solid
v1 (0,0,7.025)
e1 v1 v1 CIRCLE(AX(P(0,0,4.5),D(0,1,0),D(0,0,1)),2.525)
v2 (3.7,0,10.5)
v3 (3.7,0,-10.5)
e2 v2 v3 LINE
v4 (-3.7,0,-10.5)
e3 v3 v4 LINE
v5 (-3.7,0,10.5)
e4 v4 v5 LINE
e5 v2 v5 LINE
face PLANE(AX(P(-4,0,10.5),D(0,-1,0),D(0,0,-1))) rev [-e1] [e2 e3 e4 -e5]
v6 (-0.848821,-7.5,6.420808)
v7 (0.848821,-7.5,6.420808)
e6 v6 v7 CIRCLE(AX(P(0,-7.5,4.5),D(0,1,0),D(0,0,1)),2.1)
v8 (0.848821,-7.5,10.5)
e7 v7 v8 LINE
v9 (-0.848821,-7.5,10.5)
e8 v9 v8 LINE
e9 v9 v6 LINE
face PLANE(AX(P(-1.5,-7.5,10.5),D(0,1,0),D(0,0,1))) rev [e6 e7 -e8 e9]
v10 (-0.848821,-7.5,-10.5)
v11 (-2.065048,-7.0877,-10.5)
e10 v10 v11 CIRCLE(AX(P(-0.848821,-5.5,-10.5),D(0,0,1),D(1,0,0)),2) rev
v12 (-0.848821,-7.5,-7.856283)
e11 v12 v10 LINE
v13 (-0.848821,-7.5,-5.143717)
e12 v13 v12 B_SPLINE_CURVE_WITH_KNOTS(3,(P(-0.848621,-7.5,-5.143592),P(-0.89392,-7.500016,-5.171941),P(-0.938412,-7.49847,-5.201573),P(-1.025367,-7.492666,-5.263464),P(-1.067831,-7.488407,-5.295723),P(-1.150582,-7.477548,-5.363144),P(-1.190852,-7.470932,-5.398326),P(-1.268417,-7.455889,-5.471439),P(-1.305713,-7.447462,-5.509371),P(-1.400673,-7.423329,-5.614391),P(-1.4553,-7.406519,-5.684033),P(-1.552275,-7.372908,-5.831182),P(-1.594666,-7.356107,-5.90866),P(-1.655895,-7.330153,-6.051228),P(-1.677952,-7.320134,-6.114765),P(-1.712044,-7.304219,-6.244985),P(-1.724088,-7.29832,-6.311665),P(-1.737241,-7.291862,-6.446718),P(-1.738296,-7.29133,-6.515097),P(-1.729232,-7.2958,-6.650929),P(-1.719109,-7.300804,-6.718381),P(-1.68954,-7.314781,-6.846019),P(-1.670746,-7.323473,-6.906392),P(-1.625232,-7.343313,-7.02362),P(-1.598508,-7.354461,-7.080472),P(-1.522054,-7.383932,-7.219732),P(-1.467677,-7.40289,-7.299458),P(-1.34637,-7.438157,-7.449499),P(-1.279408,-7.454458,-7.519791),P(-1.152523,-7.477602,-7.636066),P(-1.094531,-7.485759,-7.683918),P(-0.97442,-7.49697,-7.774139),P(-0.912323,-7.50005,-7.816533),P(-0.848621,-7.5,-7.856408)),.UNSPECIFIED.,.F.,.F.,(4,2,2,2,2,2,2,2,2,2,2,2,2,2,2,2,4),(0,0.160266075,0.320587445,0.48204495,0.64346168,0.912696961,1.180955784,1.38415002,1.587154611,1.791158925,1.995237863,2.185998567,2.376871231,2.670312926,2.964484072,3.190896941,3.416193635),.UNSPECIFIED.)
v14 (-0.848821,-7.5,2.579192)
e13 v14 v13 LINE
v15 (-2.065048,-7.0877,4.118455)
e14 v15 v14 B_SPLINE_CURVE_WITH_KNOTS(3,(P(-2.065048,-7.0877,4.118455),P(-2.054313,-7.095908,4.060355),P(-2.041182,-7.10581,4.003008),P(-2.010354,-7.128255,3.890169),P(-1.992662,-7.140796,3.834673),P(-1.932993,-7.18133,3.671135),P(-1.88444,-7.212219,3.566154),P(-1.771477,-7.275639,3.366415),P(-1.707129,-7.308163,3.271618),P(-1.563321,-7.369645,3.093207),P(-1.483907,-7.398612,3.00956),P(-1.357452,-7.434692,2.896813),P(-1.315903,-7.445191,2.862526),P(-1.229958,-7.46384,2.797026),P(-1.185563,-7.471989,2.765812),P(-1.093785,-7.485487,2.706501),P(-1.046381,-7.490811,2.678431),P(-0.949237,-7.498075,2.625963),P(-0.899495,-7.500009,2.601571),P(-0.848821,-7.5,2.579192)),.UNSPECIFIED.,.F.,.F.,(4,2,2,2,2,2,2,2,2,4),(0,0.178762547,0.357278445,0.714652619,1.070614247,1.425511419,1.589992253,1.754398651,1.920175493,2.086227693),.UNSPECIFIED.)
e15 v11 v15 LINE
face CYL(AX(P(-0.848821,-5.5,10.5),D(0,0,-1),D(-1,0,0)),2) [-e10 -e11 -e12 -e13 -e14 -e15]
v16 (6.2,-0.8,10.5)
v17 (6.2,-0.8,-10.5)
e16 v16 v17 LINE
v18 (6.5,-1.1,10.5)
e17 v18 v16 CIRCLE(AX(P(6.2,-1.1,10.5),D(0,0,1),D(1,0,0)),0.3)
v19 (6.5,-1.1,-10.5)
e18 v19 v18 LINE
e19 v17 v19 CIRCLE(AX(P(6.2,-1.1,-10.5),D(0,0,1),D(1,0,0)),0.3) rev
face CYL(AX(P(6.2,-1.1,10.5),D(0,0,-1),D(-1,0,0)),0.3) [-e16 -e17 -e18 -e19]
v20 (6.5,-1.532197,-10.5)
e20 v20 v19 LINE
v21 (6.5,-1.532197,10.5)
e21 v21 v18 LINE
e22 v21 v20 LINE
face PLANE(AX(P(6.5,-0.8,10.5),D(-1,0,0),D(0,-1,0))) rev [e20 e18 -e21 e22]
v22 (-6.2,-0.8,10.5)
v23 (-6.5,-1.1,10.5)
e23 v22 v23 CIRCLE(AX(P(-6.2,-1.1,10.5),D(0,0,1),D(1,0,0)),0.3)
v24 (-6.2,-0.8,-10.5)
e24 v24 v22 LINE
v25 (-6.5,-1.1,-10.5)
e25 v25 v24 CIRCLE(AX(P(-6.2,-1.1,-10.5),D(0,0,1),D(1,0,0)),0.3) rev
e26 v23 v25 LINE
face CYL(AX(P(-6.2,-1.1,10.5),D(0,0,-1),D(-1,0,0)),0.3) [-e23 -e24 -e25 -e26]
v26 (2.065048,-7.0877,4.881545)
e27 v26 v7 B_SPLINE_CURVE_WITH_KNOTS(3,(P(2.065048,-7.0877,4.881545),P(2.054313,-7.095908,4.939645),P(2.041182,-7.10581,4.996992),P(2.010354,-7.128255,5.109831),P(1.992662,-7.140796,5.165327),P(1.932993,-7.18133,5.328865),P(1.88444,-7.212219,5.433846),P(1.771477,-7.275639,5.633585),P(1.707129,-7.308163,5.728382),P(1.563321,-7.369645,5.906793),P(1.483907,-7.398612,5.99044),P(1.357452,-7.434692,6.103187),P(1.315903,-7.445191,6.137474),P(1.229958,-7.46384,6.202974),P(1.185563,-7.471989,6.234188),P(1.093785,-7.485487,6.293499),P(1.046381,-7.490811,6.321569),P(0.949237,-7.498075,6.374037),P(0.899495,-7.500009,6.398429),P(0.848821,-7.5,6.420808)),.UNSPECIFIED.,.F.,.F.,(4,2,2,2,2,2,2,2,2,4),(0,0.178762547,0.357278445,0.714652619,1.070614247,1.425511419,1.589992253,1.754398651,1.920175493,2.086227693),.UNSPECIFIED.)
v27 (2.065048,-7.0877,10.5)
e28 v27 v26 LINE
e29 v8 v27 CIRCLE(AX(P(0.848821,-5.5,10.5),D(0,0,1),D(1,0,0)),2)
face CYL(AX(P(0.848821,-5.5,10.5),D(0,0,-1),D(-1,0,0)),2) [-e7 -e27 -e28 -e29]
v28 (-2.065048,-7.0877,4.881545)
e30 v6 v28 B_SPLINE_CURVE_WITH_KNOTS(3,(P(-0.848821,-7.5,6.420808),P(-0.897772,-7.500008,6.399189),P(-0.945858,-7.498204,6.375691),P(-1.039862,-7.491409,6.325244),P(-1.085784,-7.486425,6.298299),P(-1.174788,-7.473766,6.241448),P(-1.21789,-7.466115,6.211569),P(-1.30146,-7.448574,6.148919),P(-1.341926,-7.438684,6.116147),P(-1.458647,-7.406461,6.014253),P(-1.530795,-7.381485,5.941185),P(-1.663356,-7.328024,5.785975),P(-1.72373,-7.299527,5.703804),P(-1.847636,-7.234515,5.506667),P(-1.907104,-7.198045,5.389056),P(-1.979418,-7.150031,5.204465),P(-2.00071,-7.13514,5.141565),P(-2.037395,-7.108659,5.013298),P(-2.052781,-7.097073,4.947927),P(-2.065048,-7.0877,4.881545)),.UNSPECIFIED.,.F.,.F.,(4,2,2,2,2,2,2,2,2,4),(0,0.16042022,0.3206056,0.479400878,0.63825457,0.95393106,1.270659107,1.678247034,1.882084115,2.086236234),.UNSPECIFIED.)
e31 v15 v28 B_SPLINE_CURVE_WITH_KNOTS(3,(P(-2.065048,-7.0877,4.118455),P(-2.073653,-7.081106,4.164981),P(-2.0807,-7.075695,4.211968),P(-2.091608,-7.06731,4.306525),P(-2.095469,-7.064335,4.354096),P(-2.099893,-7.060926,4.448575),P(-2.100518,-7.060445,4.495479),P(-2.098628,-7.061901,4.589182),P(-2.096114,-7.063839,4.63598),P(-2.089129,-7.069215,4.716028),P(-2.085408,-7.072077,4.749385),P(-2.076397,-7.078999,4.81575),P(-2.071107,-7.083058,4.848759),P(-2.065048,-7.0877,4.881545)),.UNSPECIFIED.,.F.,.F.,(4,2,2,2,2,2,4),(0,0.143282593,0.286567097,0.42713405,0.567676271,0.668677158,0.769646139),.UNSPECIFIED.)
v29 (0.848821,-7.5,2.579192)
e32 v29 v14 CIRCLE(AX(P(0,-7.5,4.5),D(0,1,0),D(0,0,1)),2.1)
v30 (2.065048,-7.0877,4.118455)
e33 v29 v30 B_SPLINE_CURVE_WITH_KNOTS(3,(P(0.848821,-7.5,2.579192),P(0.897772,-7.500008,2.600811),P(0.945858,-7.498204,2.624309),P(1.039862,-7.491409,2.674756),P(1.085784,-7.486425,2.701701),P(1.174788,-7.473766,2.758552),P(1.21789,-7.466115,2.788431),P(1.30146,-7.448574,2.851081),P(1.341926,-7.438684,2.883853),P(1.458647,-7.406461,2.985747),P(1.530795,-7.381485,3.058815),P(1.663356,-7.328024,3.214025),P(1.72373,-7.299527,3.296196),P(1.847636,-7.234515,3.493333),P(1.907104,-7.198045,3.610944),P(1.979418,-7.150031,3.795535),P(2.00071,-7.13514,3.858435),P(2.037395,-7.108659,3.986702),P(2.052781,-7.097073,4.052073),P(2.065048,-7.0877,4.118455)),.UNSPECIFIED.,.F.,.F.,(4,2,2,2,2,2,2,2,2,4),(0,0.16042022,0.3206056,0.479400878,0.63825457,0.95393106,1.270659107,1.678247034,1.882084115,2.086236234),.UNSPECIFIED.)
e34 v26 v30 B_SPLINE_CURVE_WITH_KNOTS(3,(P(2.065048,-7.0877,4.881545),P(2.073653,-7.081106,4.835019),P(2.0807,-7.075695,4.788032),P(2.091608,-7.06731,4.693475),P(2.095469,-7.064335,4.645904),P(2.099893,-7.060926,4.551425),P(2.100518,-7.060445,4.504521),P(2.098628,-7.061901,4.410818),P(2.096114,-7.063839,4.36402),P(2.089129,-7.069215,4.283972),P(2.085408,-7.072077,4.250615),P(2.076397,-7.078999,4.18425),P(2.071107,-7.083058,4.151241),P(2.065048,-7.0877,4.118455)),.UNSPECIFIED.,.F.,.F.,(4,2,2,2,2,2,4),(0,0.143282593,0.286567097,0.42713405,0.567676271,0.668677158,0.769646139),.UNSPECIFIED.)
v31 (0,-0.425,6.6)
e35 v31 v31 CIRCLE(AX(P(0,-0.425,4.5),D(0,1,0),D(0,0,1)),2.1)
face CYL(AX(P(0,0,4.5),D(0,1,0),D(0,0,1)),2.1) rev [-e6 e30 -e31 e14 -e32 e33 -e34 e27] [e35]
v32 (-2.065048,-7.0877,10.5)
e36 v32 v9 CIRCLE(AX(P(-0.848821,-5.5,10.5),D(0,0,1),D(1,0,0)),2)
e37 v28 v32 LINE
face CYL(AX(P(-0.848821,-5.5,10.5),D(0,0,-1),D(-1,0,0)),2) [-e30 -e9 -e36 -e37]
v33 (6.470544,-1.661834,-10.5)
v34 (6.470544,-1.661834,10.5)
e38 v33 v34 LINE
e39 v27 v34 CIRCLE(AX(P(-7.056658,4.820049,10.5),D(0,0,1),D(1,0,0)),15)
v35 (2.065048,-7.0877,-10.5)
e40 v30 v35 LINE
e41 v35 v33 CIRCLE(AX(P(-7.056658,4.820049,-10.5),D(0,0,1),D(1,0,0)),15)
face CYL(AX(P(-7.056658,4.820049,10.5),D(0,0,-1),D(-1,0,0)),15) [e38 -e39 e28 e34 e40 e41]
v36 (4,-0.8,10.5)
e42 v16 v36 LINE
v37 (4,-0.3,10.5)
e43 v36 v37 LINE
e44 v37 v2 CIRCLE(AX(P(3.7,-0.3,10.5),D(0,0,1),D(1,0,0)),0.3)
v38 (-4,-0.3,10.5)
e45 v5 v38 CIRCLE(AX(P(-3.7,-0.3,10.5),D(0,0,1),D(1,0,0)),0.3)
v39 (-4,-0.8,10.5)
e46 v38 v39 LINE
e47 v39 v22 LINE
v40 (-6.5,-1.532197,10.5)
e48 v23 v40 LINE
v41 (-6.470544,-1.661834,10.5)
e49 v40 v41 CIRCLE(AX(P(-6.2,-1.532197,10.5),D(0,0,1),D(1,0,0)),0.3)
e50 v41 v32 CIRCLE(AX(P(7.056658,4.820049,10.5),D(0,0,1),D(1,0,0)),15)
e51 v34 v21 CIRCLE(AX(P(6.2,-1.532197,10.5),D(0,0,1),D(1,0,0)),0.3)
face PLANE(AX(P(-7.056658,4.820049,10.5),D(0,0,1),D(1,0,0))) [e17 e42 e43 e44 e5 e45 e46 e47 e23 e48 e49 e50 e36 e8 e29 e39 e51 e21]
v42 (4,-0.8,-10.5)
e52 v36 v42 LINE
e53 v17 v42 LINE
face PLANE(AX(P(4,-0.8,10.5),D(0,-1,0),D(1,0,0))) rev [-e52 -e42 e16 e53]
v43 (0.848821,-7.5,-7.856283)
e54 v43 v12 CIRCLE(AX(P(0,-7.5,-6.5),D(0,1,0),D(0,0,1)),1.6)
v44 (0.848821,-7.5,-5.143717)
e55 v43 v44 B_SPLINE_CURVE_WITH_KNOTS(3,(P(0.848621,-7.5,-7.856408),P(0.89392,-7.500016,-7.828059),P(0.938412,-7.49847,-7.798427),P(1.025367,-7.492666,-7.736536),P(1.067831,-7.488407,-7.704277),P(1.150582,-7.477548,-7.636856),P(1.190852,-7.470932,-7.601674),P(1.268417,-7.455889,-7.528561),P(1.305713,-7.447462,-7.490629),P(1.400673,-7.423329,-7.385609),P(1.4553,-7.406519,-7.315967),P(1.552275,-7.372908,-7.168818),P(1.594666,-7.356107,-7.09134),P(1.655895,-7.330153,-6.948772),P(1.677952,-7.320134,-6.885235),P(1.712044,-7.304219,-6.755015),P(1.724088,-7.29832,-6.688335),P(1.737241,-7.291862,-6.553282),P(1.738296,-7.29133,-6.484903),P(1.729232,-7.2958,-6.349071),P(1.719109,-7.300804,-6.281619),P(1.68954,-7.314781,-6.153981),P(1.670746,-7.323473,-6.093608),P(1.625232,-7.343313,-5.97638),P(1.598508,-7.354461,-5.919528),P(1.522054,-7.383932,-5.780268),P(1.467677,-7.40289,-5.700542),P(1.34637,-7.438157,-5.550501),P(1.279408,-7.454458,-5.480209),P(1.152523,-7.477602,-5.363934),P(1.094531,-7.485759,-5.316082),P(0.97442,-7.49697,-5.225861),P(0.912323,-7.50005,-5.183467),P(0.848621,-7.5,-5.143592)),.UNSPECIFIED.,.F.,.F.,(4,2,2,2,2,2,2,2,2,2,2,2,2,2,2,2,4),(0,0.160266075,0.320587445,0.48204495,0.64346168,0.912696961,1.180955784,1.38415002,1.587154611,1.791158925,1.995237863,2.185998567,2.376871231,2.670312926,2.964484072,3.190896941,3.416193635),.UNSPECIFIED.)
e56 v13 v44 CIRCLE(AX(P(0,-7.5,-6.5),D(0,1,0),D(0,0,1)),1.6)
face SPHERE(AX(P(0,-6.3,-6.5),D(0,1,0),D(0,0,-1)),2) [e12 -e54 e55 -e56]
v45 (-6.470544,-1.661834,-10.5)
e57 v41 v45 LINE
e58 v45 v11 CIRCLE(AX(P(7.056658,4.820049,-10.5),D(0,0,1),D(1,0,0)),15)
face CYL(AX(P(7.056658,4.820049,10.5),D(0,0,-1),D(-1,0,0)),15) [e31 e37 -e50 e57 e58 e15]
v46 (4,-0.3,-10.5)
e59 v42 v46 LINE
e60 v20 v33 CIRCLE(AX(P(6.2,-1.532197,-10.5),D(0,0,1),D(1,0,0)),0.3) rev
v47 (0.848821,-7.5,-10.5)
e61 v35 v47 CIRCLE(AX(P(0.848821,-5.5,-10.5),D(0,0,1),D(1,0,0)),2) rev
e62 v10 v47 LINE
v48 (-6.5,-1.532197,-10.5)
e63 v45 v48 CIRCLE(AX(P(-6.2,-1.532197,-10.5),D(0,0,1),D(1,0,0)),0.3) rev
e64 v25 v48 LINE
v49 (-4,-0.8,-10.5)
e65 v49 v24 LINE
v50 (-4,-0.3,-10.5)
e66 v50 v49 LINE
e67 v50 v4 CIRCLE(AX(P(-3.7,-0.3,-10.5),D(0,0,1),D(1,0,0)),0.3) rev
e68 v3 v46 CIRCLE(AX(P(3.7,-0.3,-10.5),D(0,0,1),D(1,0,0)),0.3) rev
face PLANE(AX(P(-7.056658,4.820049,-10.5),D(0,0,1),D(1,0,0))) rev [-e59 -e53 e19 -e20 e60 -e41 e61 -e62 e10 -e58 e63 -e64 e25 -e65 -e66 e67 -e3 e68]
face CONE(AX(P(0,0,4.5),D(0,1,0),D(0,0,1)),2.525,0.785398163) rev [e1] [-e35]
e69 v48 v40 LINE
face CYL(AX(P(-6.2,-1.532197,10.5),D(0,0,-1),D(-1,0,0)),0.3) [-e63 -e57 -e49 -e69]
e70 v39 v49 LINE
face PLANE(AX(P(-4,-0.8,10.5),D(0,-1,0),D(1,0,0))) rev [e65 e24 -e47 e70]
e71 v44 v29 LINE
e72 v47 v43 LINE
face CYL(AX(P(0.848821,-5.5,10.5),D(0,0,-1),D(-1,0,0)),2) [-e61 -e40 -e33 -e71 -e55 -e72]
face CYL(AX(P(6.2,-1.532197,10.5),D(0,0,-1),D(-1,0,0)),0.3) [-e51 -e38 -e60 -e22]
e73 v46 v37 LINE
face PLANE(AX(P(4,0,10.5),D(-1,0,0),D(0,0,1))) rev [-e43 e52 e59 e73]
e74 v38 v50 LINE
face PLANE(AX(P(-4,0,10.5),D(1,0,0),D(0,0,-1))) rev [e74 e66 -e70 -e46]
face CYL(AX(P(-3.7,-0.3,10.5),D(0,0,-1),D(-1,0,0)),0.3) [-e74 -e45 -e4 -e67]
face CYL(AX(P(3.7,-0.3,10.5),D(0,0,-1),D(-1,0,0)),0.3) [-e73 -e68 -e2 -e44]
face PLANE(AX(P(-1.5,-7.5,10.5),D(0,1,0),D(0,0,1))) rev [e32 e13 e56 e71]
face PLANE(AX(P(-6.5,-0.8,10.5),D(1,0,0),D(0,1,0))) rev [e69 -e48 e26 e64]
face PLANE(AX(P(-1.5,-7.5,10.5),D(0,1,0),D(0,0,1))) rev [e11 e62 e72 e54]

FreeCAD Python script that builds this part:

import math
import FreeCAD as App
import Part
import Sketcher

V = App.Vector
Q = App.Units.Quantity


def edges_at(feature, points):
    """Names of the edges that pass closest to the given points."""
    edges = feature.Shape.Edges
    near = lambda p: min(range(len(edges)), key=lambda i: edges[i].distToShape(Part.Vertex(*p))[0])
    return sorted({f"Edge{near(p) + 1}" for p in points})

doc = App.newDocument("Part")
params = doc.addObject("Spreadsheet::Sheet", "Params")
for row, (alias, value) in enumerate([
    ("sketch1_radius", "15 mm"),
    ("sketch1_width", "8 mm"),
    ("sketch1_width2", "3 mm"),
    ("sketch1_width3", "2.5 mm"),
    ("sketch1_height", "0.8 mm"),
    ("pad1_length", "21 mm"),
    ("fillet_radius", "0.3 mm"),
    ("fillet2_radius", "2 mm"),
    ("sketch2_diameter", "4.2 mm"),
    ("hole_diameter", "4.2 mm"),
    ("hole_csink_diameter", "5.05 mm"),
    ("sketch3_radius", "2 mm"),
    ("revolution_angle", "360 deg"),
], start=1):
    params.set(f"A{row}", alias)
    params.set(f"B{row}", "=" + value)
    params.setAlias(f"B{row}", alias)

body = doc.addObject("PartDesign::Body", "Body")

# Sketch on XY plane
sketch1 = body.newObject("Sketcher::SketchObject", "Sketch")
sketch1.AttachmentSupport = (doc.getObject("XY_Plane"), [""])
sketch1.MapMode = "FlatFace"
sketch1.addGeometry(Part.LineSegment(V(4, 0, 0), V(-4, 0, 0)), False)
sketch1.addGeometry(Part.LineSegment(V(-4, 0, 0), V(-4, -0.8, 0)), False)
sketch1.addGeometry(Part.LineSegment(V(-4, -0.8, 0), V(-6.5, -0.8, 0)), False)
sketch1.addGeometry(Part.LineSegment(V(-6.5, -0.8, 0), V(-6.5, -1.6, 0)), False)
sketch1.addGeometry(Part.ArcOfCircle(Part.Circle(V(7.056658, 4.820049, 0), V(0, 0, 1), 15), math.radians(-154.659091), math.radians(-124.781183)), False)
sketch1.addGeometry(Part.LineSegment(V(-1.5, -7.5, 0), V(1.5, -7.5, 0)), False)
sketch1.addGeometry(Part.ArcOfCircle(Part.Circle(V(-7.056658, 4.820049, 0), V(0, 0, 1), 15), math.radians(-55.218817), math.radians(-25.340909)), False)
sketch1.addGeometry(Part.LineSegment(V(6.5, -1.6, 0), V(6.5, -0.8, 0)), False)
sketch1.addGeometry(Part.LineSegment(V(6.5, -0.8, 0), V(4, -0.8, 0)), False)
sketch1.addGeometry(Part.LineSegment(V(4, -0.8, 0), V(4, 0, 0)), False)
sketch1.addConstraint(Sketcher.Constraint("Coincident", 0, 2, 1, 1))
sketch1.addConstraint(Sketcher.Constraint("Coincident", 1, 2, 2, 1))
sketch1.addConstraint(Sketcher.Constraint("Coincident", 2, 2, 3, 1))
sketch1.addConstraint(Sketcher.Constraint("Coincident", 3, 2, 4, 1))
sketch1.addConstraint(Sketcher.Constraint("Coincident", 4, 2, 5, 1))
sketch1.addConstraint(Sketcher.Constraint("Coincident", 5, 2, 6, 1))
sketch1.addConstraint(Sketcher.Constraint("Coincident", 6, 2, 7, 1))
sketch1.addConstraint(Sketcher.Constraint("Coincident", 7, 2, 8, 1))
sketch1.addConstraint(Sketcher.Constraint("Coincident", 8, 2, 9, 1))
sketch1.addConstraint(Sketcher.Constraint("Coincident", 9, 2, 0, 1))
sketch1.addConstraint(Sketcher.Constraint("Horizontal", 0))
sketch1.addConstraint(Sketcher.Constraint("Vertical", 1))
sketch1.addConstraint(Sketcher.Constraint("Horizontal", 2))
sketch1.addConstraint(Sketcher.Constraint("Vertical", 3))
sketch1.addConstraint(Sketcher.Constraint("Horizontal", 5))
sketch1.addConstraint(Sketcher.Constraint("Vertical", 7))
sketch1.addConstraint(Sketcher.Constraint("Horizontal", 8))
sketch1.addConstraint(Sketcher.Constraint("Vertical", 9))
sketch1.addConstraint(Sketcher.Constraint("Equal", 4, 6))
sketch1.addConstraint(Sketcher.Constraint("Symmetric", 0, 2, 9, 2, -1, 1))
sketch1.addConstraint(Sketcher.Constraint("Symmetric", 4, 3, 6, 3, -2))
sketch1.addConstraint(Sketcher.Constraint("Symmetric", 2, 2, 7, 2, -2))
sketch1.addConstraint(Sketcher.Constraint("Equal", 1, 3))
sketch1.addConstraint(Sketcher.Constraint("Radius", 4, Q("15 mm")))
sketch1.addConstraint(Sketcher.Constraint("DistanceX", 0, 2, 0, 1, Q("8 mm")))
sketch1.addConstraint(Sketcher.Constraint("DistanceX", 5, 1, 5, 2, Q("3 mm")))
sketch1.addConstraint(Sketcher.Constraint("DistanceX", 2, 2, 2, 1, Q("2.5 mm")))
sketch1.addConstraint(Sketcher.Constraint("DistanceY", 1, 2, 1, 1, Q("0.8 mm")))
sketch1.addConstraint(Sketcher.Constraint("DistanceY", 4, 2, -1, 1, Q("7.5 mm")))
sketch1.setExpression("Constraints[23]", "Params.sketch1_radius")
sketch1.setExpression("Constraints[24]", "Params.sketch1_width")
sketch1.setExpression("Constraints[25]", "Params.sketch1_width2")
sketch1.setExpression("Constraints[26]", "Params.sketch1_width3")
sketch1.setExpression("Constraints[27]", "Params.sketch1_height")
pad1 = body.newObject("PartDesign::Pad", "Pad")
pad1.Profile = sketch1
pad1.setExpression("Length", "Params.pad1_length")
pad1.Midplane = True
doc.recompute()

fillet = body.newObject("PartDesign::Fillet", "Fillet")
fillet.Base = (pad1, edges_at(pad1, [
    (6.5, -0.8, 0),
    (6.5, -1.6, 0),
    (-6.5, -1.6, 0),
    (-6.5, -0.8, 0),
    (-4, 0, 0),
    (4, 0, 0),
]))
fillet.setExpression("Radius", "Params.fillet_radius")
doc.recompute()

fillet2 = body.newObject("PartDesign::Fillet", "Fillet001")
fillet2.Base = (fillet, edges_at(fillet, [(1.5, -7.5, 0), (-1.5, -7.5, 0)]))
fillet2.setExpression("Radius", "Params.fillet2_radius")

# Sketch on XZ plane
sketch2 = body.newObject("Sketcher::SketchObject", "Sketch001")
sketch2.AttachmentSupport = (doc.getObject("XZ_Plane"), [""])
sketch2.MapMode = "FlatFace"
sketch2.addGeometry(Part.Circle(V(0, 4.5, 0), V(0, 0, 1), 2.1), False)
sketch2.addConstraint(Sketcher.Constraint("PointOnObject", 0, 3, -2))
sketch2.addConstraint(Sketcher.Constraint("Diameter", 0, Q("4.2 mm")))
sketch2.addConstraint(Sketcher.Constraint("DistanceY", -1, 1, 0, 3, Q("4.5 mm")))
sketch2.setExpression("Constraints[1]", "Params.sketch2_diameter")
doc.recompute()
hole = body.newObject("PartDesign::Hole", "Hole")
hole.Profile = sketch2
hole.ThreadType = "None"
hole.setExpression("Diameter", "Params.hole_diameter")
hole.DepthType = "ThroughAll"
hole.HoleCutType = "Countersink"
hole.setExpression("HoleCutDiameter", "Params.hole_csink_diameter")
hole.HoleCutCountersinkAngle = 90
hole.Reversed = True

# Sketch on YZ plane
sketch3 = body.newObject("Sketcher::SketchObject", "Sketch002")
sketch3.AttachmentSupport = (doc.getObject("YZ_Plane"), [""])
sketch3.MapMode = "FlatFace"
sketch3.addGeometry(Part.LineSegment(V(-8.3, -6.5, 0), V(-4.3, -6.5, 0)), False)
sketch3.addGeometry(Part.ArcOfCircle(Part.Circle(V(-6.3, -6.5, 0), V(0, 0, 1), 2), math.radians(0), math.radians(180)), False)
sketch3.addGeometry(Part.LineSegment(V(-4.3, -6.5, 0), V(-8.3, -6.5, 0)), True)  # axis
sketch3.addConstraint(Sketcher.Constraint("Coincident", 0, 1, 1, 2))
sketch3.addConstraint(Sketcher.Constraint("Coincident", 1, 1, 0, 2))
sketch3.addConstraint(Sketcher.Constraint("Horizontal", 0))
sketch3.addConstraint(Sketcher.Constraint("Horizontal", 2))
sketch3.addConstraint(Sketcher.Constraint("Coincident", 2, 1, 1, 1))
sketch3.addConstraint(Sketcher.Constraint("Horizontal", 1, 3, 0, 1))
sketch3.addConstraint(Sketcher.Constraint("Equal", 0, 2))
sketch3.addConstraint(Sketcher.Constraint("Radius", 1, Q("2 mm")))
sketch3.addConstraint(Sketcher.Constraint("DistanceX", 1, 3, -1, 1, Q("6.3 mm")))
sketch3.addConstraint(Sketcher.Constraint("DistanceY", 1, 3, -1, 1, Q("6.5 mm")))
sketch3.setExpression("Constraints[7]", "Params.sketch3_radius")
revolution = body.newObject("PartDesign::Revolution", "Revolution")
revolution.Profile = sketch3
revolution.ReferenceAxis = (sketch3, ["Axis0"])
revolution.setExpression("Angle", "Params.revolution_angle")

doc.recompute()
